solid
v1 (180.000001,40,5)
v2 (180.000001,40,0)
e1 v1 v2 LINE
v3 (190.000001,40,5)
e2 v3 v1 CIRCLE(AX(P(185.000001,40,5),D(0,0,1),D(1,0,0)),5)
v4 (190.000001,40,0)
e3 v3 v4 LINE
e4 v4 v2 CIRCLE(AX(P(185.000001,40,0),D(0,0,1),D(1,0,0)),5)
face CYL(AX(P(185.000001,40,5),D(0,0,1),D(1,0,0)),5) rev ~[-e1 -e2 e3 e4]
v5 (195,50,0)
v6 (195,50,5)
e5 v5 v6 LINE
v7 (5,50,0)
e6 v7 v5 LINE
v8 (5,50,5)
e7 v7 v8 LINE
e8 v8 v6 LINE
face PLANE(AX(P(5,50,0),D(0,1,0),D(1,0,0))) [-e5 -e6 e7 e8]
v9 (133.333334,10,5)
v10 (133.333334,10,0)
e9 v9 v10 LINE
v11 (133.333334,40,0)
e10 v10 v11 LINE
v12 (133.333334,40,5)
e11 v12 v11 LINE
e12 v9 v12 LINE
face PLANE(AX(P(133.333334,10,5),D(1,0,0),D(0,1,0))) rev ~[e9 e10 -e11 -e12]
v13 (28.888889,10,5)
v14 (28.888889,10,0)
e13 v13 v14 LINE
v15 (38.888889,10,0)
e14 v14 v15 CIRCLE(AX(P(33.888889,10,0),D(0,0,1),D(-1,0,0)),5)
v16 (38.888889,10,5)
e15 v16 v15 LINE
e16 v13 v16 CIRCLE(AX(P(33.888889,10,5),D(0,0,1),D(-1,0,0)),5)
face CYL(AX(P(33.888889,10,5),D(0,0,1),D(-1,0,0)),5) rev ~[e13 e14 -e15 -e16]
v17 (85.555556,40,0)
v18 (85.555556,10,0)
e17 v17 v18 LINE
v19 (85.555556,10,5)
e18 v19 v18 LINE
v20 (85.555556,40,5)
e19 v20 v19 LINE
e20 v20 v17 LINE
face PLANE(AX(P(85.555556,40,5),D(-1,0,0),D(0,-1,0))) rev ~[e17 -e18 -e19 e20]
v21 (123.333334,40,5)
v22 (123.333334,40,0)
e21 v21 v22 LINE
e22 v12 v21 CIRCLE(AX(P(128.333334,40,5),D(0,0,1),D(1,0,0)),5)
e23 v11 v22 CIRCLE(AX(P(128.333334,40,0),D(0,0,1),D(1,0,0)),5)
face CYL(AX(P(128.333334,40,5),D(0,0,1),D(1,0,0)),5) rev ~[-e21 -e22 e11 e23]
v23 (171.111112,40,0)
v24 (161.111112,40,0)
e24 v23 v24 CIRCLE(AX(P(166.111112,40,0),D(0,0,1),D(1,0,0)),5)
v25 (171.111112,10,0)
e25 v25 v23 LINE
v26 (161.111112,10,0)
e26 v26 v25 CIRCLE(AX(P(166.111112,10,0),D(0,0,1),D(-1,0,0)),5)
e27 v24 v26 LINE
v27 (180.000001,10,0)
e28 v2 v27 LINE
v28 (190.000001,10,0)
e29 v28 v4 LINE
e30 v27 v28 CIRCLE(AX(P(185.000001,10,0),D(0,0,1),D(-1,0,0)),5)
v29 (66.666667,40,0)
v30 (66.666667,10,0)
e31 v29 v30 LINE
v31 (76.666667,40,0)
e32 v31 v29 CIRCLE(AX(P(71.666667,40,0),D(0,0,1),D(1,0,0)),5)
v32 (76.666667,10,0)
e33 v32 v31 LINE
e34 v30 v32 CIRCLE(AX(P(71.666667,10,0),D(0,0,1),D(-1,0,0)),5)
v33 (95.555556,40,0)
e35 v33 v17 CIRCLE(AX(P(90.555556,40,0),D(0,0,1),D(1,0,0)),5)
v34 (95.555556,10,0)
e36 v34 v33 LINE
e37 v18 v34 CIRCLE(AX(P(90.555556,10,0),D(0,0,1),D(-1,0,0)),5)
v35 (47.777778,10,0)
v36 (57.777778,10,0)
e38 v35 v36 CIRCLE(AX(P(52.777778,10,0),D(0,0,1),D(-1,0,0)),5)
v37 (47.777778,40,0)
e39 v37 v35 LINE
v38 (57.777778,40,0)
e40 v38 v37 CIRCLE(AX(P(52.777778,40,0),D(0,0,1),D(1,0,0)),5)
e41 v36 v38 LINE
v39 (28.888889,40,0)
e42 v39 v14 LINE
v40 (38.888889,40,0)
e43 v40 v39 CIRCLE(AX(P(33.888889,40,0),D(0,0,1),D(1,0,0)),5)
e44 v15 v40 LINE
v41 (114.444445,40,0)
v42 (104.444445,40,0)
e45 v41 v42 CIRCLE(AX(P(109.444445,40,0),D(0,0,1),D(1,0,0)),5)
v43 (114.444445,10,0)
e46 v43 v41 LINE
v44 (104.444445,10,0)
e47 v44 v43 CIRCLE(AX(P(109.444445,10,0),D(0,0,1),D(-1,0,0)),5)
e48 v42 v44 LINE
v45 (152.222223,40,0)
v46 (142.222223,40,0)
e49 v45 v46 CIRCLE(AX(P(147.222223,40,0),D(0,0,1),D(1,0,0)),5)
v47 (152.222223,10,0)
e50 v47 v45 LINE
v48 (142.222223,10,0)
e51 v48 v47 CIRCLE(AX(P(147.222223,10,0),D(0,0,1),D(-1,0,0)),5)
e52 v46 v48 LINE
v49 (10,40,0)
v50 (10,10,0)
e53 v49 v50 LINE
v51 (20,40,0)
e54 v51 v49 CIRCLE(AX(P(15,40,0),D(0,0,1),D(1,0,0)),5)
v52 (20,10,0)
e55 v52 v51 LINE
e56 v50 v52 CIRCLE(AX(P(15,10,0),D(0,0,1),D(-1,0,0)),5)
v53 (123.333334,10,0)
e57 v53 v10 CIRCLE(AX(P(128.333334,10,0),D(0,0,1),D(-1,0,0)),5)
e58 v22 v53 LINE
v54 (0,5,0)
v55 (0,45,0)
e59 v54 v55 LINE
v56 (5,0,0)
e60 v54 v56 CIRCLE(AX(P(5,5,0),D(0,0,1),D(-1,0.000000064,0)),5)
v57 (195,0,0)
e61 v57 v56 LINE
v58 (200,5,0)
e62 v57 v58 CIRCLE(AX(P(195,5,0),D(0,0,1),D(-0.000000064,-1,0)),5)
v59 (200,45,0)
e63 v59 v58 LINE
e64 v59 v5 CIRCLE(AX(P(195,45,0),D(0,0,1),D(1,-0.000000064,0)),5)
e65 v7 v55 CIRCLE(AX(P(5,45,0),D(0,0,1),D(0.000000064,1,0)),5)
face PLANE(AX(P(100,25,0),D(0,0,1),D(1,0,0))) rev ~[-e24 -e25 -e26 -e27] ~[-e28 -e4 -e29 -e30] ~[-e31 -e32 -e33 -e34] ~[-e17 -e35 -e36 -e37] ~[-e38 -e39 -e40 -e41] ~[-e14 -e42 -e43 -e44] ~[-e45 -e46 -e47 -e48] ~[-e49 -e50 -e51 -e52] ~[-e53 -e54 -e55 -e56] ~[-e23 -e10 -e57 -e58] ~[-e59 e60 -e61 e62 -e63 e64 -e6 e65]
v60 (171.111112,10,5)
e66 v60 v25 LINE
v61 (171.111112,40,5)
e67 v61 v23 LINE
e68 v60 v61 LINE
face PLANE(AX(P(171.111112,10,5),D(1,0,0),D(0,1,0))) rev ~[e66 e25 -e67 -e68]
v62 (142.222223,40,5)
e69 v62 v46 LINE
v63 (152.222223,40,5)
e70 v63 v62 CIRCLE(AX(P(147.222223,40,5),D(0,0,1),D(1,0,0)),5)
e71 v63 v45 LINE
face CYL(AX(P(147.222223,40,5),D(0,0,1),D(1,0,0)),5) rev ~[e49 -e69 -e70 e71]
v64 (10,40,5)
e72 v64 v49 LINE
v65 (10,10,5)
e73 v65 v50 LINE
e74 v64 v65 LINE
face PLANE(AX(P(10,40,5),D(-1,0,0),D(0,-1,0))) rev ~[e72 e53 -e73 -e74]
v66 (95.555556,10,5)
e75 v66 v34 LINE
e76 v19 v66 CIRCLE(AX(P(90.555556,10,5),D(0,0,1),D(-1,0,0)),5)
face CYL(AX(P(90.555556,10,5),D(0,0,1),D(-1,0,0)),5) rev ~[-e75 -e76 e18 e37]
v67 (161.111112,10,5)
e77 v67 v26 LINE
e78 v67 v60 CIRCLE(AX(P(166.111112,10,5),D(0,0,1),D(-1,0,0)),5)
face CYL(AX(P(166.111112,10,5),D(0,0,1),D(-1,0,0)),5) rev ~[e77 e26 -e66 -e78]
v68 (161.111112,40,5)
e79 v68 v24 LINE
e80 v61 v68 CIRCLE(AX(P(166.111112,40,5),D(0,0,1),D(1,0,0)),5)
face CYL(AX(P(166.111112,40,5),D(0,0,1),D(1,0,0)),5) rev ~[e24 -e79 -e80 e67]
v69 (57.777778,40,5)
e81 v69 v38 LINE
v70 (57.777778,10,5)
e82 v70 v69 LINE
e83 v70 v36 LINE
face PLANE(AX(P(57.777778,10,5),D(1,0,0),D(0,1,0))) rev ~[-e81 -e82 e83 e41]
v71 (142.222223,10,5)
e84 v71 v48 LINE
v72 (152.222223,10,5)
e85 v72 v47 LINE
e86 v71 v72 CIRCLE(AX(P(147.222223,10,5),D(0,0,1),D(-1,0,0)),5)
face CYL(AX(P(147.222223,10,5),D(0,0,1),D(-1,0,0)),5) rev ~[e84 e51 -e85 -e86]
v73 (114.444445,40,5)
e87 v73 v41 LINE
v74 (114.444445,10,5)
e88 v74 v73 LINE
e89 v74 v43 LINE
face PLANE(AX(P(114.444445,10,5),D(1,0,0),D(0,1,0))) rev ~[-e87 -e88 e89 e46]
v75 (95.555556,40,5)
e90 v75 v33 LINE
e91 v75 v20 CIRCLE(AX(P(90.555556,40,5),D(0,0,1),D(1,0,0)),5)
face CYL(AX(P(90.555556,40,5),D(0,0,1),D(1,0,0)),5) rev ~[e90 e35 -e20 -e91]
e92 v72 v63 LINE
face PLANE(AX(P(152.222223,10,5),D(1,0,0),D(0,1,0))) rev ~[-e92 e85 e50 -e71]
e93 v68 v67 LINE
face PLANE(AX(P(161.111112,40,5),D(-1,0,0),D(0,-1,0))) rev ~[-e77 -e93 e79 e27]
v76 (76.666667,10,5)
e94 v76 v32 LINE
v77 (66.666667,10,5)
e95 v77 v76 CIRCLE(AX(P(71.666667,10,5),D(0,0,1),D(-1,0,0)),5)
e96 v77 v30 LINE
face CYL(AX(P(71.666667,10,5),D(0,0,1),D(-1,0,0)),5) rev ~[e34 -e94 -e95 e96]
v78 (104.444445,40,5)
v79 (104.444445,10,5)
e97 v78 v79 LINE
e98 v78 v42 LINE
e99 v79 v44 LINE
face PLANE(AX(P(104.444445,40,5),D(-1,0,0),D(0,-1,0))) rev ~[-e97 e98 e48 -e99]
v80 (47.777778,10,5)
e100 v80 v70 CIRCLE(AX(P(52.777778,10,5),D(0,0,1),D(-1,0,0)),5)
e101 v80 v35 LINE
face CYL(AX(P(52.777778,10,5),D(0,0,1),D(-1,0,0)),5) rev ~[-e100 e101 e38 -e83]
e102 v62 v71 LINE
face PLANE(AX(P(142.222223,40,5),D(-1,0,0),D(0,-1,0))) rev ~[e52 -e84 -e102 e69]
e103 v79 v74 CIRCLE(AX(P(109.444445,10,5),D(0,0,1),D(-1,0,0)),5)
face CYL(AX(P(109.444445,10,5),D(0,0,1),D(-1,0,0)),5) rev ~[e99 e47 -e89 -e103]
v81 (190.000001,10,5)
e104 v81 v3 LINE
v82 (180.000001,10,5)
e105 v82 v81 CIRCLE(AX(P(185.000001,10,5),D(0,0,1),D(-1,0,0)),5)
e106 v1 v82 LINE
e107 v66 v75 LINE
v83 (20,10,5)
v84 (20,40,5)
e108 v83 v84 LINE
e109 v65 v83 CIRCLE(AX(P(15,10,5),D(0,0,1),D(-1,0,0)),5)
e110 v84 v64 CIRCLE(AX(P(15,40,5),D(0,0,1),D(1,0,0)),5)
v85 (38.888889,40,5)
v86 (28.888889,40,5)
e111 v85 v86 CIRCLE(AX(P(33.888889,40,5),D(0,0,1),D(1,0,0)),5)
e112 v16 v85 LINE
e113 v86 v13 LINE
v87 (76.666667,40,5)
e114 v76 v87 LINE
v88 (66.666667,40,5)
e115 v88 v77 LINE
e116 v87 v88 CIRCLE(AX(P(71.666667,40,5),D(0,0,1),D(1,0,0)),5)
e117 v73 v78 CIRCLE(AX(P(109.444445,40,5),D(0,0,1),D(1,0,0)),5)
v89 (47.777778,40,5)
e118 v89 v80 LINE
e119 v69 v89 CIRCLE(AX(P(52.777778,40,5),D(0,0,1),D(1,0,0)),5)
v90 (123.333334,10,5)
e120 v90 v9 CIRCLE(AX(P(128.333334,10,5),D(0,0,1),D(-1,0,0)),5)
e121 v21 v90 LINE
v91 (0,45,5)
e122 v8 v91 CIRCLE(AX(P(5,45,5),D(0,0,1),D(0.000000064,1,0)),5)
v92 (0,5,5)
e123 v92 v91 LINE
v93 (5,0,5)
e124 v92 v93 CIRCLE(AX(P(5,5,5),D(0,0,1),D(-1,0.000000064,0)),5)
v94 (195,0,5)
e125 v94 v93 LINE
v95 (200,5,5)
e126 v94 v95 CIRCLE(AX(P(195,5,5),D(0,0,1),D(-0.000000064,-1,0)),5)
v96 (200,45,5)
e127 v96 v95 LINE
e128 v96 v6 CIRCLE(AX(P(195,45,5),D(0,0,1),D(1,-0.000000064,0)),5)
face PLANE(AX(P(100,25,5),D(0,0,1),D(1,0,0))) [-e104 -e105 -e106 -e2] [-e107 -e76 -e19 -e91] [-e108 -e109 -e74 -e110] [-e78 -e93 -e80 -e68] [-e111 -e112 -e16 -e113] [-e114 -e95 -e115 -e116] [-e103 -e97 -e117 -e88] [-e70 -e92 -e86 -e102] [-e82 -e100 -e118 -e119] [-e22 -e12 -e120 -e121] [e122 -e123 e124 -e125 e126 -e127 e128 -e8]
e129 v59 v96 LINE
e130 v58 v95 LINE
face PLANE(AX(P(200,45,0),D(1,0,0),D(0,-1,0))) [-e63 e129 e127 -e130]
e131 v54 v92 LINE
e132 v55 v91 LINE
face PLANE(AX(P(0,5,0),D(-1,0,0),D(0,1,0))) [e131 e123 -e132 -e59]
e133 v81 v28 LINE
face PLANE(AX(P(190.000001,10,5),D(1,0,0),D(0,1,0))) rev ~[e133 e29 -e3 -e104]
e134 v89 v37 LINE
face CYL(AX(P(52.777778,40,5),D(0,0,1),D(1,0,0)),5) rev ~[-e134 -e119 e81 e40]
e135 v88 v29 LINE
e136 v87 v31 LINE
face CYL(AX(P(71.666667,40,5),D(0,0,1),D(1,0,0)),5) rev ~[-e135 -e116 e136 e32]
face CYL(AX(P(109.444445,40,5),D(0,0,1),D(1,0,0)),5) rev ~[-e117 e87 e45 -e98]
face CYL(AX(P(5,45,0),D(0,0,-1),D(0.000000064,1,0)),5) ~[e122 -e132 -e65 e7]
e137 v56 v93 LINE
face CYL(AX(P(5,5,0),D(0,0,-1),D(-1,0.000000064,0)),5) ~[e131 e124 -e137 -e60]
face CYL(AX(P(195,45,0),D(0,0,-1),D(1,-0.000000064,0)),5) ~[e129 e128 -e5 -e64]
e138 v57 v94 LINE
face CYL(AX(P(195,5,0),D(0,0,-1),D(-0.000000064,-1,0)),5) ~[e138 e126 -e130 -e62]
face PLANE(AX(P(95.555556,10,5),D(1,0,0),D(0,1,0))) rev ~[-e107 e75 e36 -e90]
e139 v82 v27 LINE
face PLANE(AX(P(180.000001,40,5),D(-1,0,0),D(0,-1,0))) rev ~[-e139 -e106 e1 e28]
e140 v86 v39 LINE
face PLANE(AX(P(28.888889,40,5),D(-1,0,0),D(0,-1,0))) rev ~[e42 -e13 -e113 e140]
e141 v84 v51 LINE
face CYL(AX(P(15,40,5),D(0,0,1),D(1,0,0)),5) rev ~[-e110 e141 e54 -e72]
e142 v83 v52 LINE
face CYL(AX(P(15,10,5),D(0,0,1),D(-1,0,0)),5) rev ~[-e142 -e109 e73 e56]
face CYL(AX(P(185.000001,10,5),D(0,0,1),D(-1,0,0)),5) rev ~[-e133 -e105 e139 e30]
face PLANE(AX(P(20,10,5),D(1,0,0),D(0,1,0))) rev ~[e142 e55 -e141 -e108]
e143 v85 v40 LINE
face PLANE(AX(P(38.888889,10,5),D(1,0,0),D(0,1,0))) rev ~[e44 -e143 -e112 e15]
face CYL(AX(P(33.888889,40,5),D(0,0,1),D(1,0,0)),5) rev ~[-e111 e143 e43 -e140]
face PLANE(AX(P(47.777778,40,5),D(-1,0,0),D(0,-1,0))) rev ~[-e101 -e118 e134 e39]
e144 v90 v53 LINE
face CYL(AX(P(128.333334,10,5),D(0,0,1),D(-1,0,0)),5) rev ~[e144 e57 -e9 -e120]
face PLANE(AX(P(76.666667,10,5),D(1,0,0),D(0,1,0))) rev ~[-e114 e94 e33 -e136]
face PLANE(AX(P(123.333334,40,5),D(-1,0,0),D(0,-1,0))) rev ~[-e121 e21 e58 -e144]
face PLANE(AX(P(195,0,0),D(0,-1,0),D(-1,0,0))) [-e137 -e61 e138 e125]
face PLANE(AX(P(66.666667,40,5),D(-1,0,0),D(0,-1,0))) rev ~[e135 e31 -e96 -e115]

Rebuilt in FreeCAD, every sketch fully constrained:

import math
import FreeCAD as App
import Part
import Sketcher

V = App.Vector

doc = App.newDocument("Part")
params = doc.addObject("Spreadsheet::Sheet", "Params")
for row, (alias, value) in enumerate([
    ("sketch1_radius", "5 mm"),
    ("sketch1_width", "190 mm"),
    ("sketch1_height", "40 mm"),
    ("pad1_length", "5 mm"),
    ("sketch2_radius", "5 mm"),
    ("sketch2_height", "30 mm"),
    ("pocket1_length", "5 mm"),
    ("linearpattern_pitch", "18.888889 mm"),
], start=1):
    params.set(f"A{row}", alias)
    params.set(f"B{row}", "=" + value)
    params.setAlias(f"B{row}", alias)

body = doc.addObject("PartDesign::Body", "Body")

sketch1 = body.newObject("Sketcher::SketchObject", "Sketch")
sketch1.AttachmentSupport = (doc.getObject("XY_Plane"), [""])
sketch1.MapMode = "FlatFace"
sketch1.addGeometry([
    Part.ArcOfCircle(Part.Circle(V(5, 5, 0), V(0, 0, 1), 5), math.radians(179.999996), math.radians(270.000004)),
    Part.LineSegment(V(5, 0, 0), V(195, 0, 0)),
    Part.ArcOfCircle(Part.Circle(V(195, 5, 0), V(0, 0, 1), 5), math.radians(-90.000004), math.radians(0.000004)),
    Part.LineSegment(V(200, 5, 0), V(200, 45, 0)),
    Part.ArcOfCircle(Part.Circle(V(195, 45, 0), V(0, 0, 1), 5), math.radians(-0.000004), math.radians(90.000004)),
    Part.LineSegment(V(195, 50, 0), V(5, 50, 0)),
    Part.ArcOfCircle(Part.Circle(V(5, 45, 0), V(0, 0, 1), 5), math.radians(89.999996), math.radians(180.000004)),
    Part.LineSegment(V(0, 45, 0), V(0, 5, 0)),
], False)
sketch1.addConstraint([
    Sketcher.Constraint("Tangent", 0, 2, 1, 1),
    Sketcher.Constraint("Tangent", 1, 2, 2, 1),
    Sketcher.Constraint("Tangent", 2, 2, 3, 1),
    Sketcher.Constraint("Tangent", 3, 2, 4, 1),
    Sketcher.Constraint("Tangent", 4, 2, 5, 1),
    Sketcher.Constraint("Tangent", 5, 2, 6, 1),
    Sketcher.Constraint("Tangent", 6, 2, 7, 1),
    Sketcher.Constraint("Tangent", 7, 2, 0, 1),
    Sketcher.Constraint("Horizontal", 1),
    Sketcher.Constraint("Vertical", 3),
    Sketcher.Constraint("Horizontal", 5),
    Sketcher.Constraint("Vertical", 7),
    Sketcher.Constraint("Equal", 0, 2),
    Sketcher.Constraint("Equal", 2, 4),
    Sketcher.Constraint("Equal", 4, 6),
    Sketcher.Constraint("PointOnObject", 0, 2, -1),
    Sketcher.Constraint("PointOnObject", 6, 2, -2),
    Sketcher.Constraint("Radius", 0, 5.0),
    Sketcher.Constraint("DistanceX", 1, 1, 1, 2, 190.0),
    Sketcher.Constraint("DistanceY", 3, 1, 3, 2, 40.0),
])
sketch1.setExpression("Constraints[17]", "Params.sketch1_radius")
sketch1.setExpression("Constraints[18]", "Params.sketch1_width")
sketch1.setExpression("Constraints[19]", "Params.sketch1_height")
pad1 = body.newObject("PartDesign::Pad", "Pad")
pad1.Profile = sketch1
pad1.setExpression("Length", "Params.pad1_length")

sketch2 = body.newObject("Sketcher::SketchObject", "Sketch001")
sketch2.AttachmentSupport = (doc.getObject("XY_Plane"), [""])
sketch2.MapMode = "FlatFace"
sketch2.AttachmentOffset = App.Placement(V(0, 0, 5), App.Rotation())
sketch2.addGeometry([
    Part.ArcOfCircle(Part.Circle(V(15, 10, 0), V(0, 0, 1), 5), math.radians(180), math.radians(360)),
    Part.LineSegment(V(20, 10, 0), V(20, 40, 0)),
    Part.ArcOfCircle(Part.Circle(V(15, 40, 0), V(0, 0, 1), 5), math.radians(0), math.radians(180)),
    Part.LineSegment(V(10, 40, 0), V(10, 10, 0)),
], False)
sketch2.addConstraint([
    Sketcher.Constraint("Tangent", 0, 2, 1, 1),
    Sketcher.Constraint("Tangent", 1, 2, 2, 1),
    Sketcher.Constraint("Tangent", 2, 2, 3, 1),
    Sketcher.Constraint("Tangent", 3, 2, 0, 1),
    Sketcher.Constraint("Vertical", 1),
    Sketcher.Constraint("Vertical", 3),
    Sketcher.Constraint("Radius", 0, 5.0),
    Sketcher.Constraint("DistanceY", 1, 1, 1, 2, 30.0),
    Sketcher.Constraint("DistanceX", -1, 1, 0, 3, 15.0),
    Sketcher.Constraint("DistanceY", -1, 1, 0, 3, 10.0),
])
sketch2.setExpression("Constraints[6]", "Params.sketch2_radius")
sketch2.setExpression("Constraints[7]", "Params.sketch2_height")
pocket1 = body.newObject("PartDesign::Pocket", "Pocket")
pocket1.Profile = sketch2
pocket1.setExpression("Length", "Params.pocket1_length")
doc.recompute()

linearpattern = body.newObject("PartDesign::LinearPattern", "LinearPattern")
linearpattern.Originals = [pocket1]
linearpattern.Direction = (doc.getObject("X_Axis"), [""])
linearpattern.Mode = "offset"
linearpattern.setExpression("Offset", "Params.linearpattern_pitch")
linearpattern.Occurrences = 10
body.Tip = linearpattern

doc.recompute()
